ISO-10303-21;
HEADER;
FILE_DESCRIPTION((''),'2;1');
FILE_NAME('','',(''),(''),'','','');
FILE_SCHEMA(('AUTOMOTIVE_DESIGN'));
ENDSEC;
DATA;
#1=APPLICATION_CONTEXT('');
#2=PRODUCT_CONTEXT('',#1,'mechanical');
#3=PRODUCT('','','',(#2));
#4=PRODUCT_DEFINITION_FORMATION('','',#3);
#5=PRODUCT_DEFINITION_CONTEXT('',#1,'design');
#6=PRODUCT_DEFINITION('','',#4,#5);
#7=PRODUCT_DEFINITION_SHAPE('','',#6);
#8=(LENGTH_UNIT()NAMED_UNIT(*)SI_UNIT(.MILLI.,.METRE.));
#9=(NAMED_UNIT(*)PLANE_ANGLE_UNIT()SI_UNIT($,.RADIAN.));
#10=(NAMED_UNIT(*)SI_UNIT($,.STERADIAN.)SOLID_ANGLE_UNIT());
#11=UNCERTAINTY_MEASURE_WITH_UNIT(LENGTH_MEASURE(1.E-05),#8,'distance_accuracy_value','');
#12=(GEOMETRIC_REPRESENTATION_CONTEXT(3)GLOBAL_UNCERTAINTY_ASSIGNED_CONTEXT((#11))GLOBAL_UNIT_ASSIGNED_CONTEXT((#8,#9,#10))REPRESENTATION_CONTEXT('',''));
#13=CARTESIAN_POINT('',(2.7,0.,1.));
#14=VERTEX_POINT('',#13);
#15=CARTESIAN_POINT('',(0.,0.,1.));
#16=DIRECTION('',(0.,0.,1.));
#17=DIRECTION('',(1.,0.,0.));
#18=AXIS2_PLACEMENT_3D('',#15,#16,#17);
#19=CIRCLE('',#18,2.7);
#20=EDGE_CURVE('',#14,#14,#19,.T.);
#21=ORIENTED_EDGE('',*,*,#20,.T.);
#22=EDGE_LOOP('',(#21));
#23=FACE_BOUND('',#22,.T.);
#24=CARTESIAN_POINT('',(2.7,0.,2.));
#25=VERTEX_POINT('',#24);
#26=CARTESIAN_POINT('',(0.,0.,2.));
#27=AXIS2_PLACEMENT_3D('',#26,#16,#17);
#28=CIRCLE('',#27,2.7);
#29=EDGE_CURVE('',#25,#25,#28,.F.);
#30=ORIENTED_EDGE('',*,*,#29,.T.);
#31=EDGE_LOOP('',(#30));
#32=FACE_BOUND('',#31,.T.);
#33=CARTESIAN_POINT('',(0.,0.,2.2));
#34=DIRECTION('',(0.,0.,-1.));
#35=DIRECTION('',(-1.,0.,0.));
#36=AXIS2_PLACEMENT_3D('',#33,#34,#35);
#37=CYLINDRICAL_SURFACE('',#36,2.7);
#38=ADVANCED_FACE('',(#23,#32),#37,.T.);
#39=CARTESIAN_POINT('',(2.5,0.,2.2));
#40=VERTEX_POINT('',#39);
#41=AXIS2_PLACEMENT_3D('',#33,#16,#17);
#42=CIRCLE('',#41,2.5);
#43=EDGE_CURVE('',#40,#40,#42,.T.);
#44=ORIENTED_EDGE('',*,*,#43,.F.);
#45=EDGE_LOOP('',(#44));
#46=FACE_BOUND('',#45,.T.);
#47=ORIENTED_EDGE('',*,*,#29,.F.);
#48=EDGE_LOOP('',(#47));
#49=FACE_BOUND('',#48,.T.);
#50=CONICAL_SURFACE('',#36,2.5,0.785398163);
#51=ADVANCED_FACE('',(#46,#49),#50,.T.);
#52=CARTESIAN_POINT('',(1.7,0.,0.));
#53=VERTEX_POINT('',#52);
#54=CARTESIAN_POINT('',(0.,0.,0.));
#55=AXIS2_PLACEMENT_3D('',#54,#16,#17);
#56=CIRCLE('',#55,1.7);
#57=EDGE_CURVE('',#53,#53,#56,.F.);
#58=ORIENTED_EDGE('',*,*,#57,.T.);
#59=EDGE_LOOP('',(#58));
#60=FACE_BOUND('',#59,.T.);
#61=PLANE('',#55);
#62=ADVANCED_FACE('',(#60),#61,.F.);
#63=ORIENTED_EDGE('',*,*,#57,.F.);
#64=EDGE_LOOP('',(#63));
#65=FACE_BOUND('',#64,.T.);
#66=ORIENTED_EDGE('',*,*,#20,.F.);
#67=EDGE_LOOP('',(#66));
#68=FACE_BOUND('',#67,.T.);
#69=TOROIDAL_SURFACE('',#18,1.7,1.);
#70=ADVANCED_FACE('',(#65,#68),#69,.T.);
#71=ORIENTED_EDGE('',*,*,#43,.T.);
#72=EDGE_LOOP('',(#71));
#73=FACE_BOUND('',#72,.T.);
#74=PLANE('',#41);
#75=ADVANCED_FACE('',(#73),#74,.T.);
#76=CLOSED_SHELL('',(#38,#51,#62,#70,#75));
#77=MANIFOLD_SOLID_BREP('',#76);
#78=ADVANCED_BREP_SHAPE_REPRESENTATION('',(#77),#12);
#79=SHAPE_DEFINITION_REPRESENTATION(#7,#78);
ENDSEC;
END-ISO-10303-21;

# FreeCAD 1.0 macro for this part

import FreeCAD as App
import Part
import Sketcher
from FreeCAD import Vector


def edges_at(feature, points):
    """Names of the edges that pass closest to the given points."""
    edges = feature.Shape.Edges
    near = lambda p: min(range(len(edges)), key=lambda i: edges[i].distToShape(Part.Vertex(*p))[0])
    return sorted({f"Edge{near(p) + 1}" for p in points})

doc = App.newDocument("Part")
body = doc.addObject("PartDesign::Body", "Body")

sketch1 = body.newObject("Sketcher::SketchObject", "Sketch")
sketch1.AttachmentSupport = (doc.getObject("XY_Plane"), [""])
sketch1.MapMode = "FlatFace"
sketch1.addGeometry(Part.Circle(Vector(0, 0, 0), Vector(0, 0, 1), 2.7), False)
sketch1.addConstraint([
    Sketcher.Constraint("Coincident", 0, 3, -1, 1),
    Sketcher.Constraint("Diameter", 0, 5.4),
])
pad1 = body.newObject("PartDesign::Pad", "Pad")
pad1.Profile = sketch1
pad1.Length = 2.2
doc.recompute()

fillet = body.newObject("PartDesign::Fillet", "Fillet")
fillet.Base = (pad1, edges_at(pad1, [(-2.7, 0, 0)]))
fillet.Radius = 1
doc.recompute()

chamfer = body.newObject("PartDesign::Chamfer", "Chamfer")
chamfer.Base = (fillet, edges_at(fillet, [(-2.7, 0, 2.2)]))
chamfer.Size = 0.2

doc.recompute()
